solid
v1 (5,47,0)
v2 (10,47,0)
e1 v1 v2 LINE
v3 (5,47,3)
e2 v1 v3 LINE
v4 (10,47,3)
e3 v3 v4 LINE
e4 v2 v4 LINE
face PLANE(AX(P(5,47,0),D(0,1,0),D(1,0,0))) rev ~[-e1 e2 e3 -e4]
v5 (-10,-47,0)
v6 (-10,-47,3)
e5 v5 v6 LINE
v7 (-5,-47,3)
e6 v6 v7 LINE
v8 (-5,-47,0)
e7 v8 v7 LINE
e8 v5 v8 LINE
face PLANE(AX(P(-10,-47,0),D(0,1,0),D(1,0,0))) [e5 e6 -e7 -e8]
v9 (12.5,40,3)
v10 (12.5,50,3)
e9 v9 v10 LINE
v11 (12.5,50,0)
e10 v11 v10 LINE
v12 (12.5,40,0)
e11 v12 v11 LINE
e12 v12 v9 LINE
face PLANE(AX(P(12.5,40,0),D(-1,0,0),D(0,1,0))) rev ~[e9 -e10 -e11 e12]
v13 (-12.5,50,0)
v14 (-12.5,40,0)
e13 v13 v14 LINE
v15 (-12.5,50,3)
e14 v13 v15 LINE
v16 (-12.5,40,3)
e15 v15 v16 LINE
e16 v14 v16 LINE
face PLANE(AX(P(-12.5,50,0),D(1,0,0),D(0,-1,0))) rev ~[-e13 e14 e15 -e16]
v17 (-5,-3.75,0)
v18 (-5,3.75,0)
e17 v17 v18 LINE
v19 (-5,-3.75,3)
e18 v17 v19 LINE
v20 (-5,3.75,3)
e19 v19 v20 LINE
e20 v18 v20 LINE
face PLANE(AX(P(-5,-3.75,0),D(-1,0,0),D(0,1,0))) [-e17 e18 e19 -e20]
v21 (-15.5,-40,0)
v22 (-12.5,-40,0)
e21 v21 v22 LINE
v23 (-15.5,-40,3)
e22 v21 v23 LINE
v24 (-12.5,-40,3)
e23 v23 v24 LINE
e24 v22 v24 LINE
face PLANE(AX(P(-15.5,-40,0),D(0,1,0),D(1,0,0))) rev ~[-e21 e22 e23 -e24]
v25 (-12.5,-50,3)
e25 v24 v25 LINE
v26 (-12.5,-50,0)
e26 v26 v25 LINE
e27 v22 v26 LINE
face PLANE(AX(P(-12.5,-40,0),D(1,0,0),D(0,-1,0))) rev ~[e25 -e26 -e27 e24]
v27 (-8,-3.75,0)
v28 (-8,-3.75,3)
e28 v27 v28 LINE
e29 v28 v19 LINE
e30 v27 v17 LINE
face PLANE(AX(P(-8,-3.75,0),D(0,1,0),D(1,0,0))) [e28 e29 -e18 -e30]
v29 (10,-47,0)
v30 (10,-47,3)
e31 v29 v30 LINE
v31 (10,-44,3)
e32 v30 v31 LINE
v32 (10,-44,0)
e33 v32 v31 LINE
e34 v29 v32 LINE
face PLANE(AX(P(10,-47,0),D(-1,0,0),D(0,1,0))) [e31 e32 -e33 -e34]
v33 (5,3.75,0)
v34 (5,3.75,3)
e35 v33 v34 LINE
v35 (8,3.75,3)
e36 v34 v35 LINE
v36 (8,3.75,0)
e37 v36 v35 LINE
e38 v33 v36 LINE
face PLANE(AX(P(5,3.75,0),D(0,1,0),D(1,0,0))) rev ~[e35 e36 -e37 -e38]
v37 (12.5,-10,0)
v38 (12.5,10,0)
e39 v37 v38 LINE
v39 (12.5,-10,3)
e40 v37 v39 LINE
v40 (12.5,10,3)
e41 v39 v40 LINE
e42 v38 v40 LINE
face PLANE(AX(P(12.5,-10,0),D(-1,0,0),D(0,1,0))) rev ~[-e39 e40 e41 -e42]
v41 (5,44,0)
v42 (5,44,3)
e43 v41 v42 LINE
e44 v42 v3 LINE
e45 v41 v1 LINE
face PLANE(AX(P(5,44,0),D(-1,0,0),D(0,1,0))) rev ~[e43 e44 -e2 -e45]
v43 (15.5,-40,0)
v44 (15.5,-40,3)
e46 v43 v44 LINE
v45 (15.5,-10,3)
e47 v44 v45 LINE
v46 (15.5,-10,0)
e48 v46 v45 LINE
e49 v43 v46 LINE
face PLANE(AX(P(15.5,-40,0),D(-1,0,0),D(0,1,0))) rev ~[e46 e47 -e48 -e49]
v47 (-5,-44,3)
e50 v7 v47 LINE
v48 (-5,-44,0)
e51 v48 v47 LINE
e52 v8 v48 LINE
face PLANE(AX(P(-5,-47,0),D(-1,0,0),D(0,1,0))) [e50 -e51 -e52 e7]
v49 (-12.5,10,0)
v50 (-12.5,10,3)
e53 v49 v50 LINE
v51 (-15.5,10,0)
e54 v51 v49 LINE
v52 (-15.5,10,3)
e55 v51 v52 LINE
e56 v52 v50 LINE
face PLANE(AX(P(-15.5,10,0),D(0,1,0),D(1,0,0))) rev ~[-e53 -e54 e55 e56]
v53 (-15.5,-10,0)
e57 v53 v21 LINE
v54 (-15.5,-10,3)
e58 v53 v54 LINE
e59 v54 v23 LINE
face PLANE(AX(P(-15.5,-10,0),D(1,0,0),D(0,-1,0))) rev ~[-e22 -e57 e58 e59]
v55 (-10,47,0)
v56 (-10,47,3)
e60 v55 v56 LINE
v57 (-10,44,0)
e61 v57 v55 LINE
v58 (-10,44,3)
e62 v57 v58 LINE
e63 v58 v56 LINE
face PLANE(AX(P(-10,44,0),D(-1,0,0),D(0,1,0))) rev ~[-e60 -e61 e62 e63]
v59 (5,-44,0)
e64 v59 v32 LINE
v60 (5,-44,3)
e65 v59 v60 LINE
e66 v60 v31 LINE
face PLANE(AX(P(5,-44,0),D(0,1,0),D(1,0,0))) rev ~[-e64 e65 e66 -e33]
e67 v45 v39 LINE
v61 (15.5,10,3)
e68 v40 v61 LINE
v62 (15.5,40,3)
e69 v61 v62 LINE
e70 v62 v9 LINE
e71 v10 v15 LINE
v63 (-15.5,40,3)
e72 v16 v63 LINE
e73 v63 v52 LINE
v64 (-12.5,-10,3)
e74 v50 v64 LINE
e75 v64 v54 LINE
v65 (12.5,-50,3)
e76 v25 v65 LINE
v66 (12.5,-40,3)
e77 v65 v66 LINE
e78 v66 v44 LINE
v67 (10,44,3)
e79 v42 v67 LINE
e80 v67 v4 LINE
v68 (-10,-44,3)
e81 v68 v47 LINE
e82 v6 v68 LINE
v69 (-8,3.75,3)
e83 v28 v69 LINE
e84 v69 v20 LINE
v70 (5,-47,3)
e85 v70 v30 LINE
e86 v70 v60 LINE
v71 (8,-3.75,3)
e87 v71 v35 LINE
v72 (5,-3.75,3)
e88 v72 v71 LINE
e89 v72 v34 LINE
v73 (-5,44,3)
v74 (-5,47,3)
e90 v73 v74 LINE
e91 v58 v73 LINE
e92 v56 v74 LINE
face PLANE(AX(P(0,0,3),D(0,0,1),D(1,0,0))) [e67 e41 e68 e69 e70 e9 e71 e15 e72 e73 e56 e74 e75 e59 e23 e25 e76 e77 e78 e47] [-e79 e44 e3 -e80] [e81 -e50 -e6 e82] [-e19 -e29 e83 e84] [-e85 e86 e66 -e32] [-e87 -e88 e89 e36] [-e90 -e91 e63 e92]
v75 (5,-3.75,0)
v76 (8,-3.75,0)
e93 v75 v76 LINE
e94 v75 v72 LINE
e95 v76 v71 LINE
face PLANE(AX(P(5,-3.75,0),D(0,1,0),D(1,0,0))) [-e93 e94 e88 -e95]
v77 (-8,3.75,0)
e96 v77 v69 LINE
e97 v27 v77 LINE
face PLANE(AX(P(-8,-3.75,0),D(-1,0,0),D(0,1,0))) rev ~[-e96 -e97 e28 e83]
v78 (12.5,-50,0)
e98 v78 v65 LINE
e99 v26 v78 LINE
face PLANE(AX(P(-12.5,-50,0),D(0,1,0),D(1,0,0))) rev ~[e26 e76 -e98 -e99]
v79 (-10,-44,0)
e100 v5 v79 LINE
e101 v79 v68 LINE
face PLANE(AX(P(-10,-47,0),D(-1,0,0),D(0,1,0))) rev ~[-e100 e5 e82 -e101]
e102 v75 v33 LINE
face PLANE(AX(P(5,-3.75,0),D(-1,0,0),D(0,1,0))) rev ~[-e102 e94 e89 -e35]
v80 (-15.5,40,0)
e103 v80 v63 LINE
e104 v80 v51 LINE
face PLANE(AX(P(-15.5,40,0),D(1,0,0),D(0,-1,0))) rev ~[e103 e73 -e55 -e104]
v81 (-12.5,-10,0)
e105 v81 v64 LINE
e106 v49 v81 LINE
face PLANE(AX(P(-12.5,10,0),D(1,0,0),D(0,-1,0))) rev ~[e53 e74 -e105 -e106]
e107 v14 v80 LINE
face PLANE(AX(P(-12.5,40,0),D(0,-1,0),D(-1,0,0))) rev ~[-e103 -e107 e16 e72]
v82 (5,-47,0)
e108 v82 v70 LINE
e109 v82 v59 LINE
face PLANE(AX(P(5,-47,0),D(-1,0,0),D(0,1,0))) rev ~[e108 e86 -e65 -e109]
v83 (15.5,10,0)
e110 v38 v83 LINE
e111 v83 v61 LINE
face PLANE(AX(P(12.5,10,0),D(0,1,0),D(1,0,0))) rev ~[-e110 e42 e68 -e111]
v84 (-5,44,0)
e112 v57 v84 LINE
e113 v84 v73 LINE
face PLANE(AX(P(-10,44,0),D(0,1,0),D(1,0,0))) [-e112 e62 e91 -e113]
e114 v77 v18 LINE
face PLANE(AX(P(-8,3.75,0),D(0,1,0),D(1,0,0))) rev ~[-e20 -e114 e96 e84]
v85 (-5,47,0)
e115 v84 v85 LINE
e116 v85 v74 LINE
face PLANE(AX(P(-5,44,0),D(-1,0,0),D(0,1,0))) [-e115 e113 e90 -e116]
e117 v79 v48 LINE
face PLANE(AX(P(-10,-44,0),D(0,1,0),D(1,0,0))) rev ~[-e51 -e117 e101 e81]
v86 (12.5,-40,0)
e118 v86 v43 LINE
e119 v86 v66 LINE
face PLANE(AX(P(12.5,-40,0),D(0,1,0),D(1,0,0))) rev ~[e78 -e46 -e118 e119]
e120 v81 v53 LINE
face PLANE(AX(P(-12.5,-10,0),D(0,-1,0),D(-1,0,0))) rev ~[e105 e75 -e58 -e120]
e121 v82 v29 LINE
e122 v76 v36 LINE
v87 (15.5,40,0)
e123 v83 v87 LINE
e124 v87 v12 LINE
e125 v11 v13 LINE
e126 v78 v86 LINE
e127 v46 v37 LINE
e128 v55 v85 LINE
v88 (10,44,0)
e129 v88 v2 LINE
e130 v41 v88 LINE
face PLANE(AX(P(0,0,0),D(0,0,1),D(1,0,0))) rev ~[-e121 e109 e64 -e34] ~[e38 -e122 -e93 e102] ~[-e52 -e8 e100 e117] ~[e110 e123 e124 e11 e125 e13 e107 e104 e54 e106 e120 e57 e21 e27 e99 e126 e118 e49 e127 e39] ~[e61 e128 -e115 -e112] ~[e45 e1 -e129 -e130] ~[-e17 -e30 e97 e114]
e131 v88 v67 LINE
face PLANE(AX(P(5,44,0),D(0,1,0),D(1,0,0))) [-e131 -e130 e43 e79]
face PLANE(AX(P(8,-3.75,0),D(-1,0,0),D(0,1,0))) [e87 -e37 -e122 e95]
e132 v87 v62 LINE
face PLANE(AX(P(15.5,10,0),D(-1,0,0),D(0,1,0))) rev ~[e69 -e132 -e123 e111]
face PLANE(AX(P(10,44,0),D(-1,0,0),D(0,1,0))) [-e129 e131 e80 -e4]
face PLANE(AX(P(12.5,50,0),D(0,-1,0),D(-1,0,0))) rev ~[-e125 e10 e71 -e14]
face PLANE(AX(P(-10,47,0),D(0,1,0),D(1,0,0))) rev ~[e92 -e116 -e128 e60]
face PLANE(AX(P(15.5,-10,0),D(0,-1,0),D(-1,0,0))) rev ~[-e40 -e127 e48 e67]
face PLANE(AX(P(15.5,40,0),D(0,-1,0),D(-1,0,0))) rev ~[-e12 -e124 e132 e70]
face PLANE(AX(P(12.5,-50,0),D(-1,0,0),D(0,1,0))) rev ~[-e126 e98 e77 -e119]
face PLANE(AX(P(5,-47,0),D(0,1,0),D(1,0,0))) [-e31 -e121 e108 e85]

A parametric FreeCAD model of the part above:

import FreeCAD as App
import Part
import Sketcher
Q = App.Units.Quantity


def add_polygon(sketch, points):
    """Adds a closed chain of lines whose ends are joined by coincident constraints."""
    first, n = sketch.GeometryCount, len(points)
    for a, b in zip(points, points[1:] + points[:1]):
        sketch.addGeometry(Part.LineSegment(App.Vector(*a, 0), App.Vector(*b, 0)), False)
    for i in range(n):
        sketch.addConstraint(Sketcher.Constraint("Coincident", first + i, 2, first + (i + 1) % n, 1))

doc = App.newDocument("Part")
body = doc.addObject("PartDesign::Body", "Body")

sketch1 = body.newObject("Sketcher::SketchObject", "Sketch")
sketch1.AttachmentSupport = (doc.getObject("XY_Plane"), [""])
sketch1.MapMode = "FlatFace"
add_polygon(sketch1, [(12.5, 50), (-12.5, 50), (-12.5, 40), (-15.5, 40), (-15.5, 10), (-12.5, 10), (-12.5, -10), (-15.5, -10), (-15.5, -40), (-12.5, -40), (-12.5, -50), (12.5, -50), (12.5, -40), (15.5, -40), (15.5, -10), (12.5, -10), (12.5, 10), (15.5, 10), (15.5, 40), (12.5, 40)])
add_polygon(sketch1, [(-5, -47), (-10, -47), (-10, -44), (-5, -44)])
add_polygon(sketch1, [(10, -47), (5, -47), (5, -44), (10, -44)])
add_polygon(sketch1, [(-5, -3.8), (-8, -3.8), (-8, 3.8), (-5, 3.8)])
add_polygon(sketch1, [(-5, 44), (-10, 44), (-10, 47), (-5, 47)])
add_polygon(sketch1, [(8, -3.8), (5, -3.8), (5, 3.8), (8, 3.8)])
add_polygon(sketch1, [(10, 44), (5, 44), (5, 47), (10, 47)])
sketch1.addConstraint([
    Sketcher.Constraint("Horizontal", 0),
    Sketcher.Constraint("Vertical", 1),
    Sketcher.Constraint("Horizontal", 2),
    Sketcher.Constraint("Vertical", 3),
    Sketcher.Constraint("Horizontal", 4),
    Sketcher.Constraint("Vertical", 5),
    Sketcher.Constraint("Horizontal", 6),
    Sketcher.Constraint("Vertical", 7),
    Sketcher.Constraint("Horizontal", 8),
    Sketcher.Constraint("Vertical", 9),
    Sketcher.Constraint("Horizontal", 10),
    Sketcher.Constraint("Vertical", 11),
    Sketcher.Constraint("Horizontal", 12),
    Sketcher.Constraint("Vertical", 13),
    Sketcher.Constraint("Horizontal", 14),
    Sketcher.Constraint("Vertical", 15),
    Sketcher.Constraint("Horizontal", 16),
    Sketcher.Constraint("Vertical", 17),
    Sketcher.Constraint("Horizontal", 18),
    Sketcher.Constraint("Vertical", 19),
    Sketcher.Constraint("Horizontal", 20),
    Sketcher.Constraint("Vertical", 21),
    Sketcher.Constraint("Horizontal", 22),
    Sketcher.Constraint("Vertical", 23),
    Sketcher.Constraint("Horizontal", 24),
    Sketcher.Constraint("Vertical", 25),
    Sketcher.Constraint("Horizontal", 26),
    Sketcher.Constraint("Vertical", 27),
    Sketcher.Constraint("Horizontal", 28),
    Sketcher.Constraint("Vertical", 29),
    Sketcher.Constraint("Horizontal", 30),
    Sketcher.Constraint("Vertical", 31),
    Sketcher.Constraint("Horizontal", 32),
    Sketcher.Constraint("Vertical", 33),
    Sketcher.Constraint("Horizontal", 34),
    Sketcher.Constraint("Vertical", 35),
    Sketcher.Constraint("Horizontal", 36),
    Sketcher.Constraint("Vertical", 37),
    Sketcher.Constraint("Horizontal", 38),
    Sketcher.Constraint("Vertical", 39),
    Sketcher.Constraint("Horizontal", 40),
    Sketcher.Constraint("Vertical", 41),
    Sketcher.Constraint("Horizontal", 42),
    Sketcher.Constraint("Vertical", 43),
    Sketcher.Constraint("Symmetric", 0, 2, 10, 2, -1, 1),
    Sketcher.Constraint("Symmetric", 2, 2, 12, 2, -1, 1),
    Sketcher.Constraint("Symmetric", 4, 2, 14, 2, -1, 1),
    Sketcher.Constraint("Symmetric", 6, 2, 16, 2, -1, 1),
    Sketcher.Constraint("Symmetric", 8, 2, 18, 2, -1, 1),
    Sketcher.Constraint("Symmetric", 26, 2, 32, 2, -1, 1),
    Sketcher.Constraint("Symmetric", 24, 2, 34, 2, -1, 1),
    Sketcher.Constraint("Symmetric", 30, 2, 36, 2, -1, 1),
    Sketcher.Constraint("Symmetric", 28, 2, 38, 2, -1, 1),
    Sketcher.Constraint("Symmetric", 22, 2, 40, 2, -1, 1),
    Sketcher.Constraint("Symmetric", 20, 2, 42, 2, -1, 1),
    Sketcher.Constraint("Symmetric", 8, 2, 11, 2, -2),
    Sketcher.Constraint("Symmetric", 6, 2, 13, 2, -2),
    Sketcher.Constraint("Symmetric", 23, 2, 24, 2, -2),
    Sketcher.Constraint("Symmetric", 21, 2, 26, 2, -2),
    Sketcher.Constraint("Horizontal", 31, 2, 36, 2),
    Sketcher.Constraint("Vertical", 1, 2, 4, 2),
    Sketcher.Constraint("Vertical", 23, 2, 30, 2),
    Sketcher.Constraint("Equal", 18, 28),
    Sketcher.Constraint("Equal", 38, 21),
    Sketcher.Constraint("DistanceX", 0, 2, 0, 1, Q("25 mm")),
    Sketcher.Constraint("DistanceX", 2, 2, 2, 1, Q("3 mm")),
    Sketcher.Constraint("DistanceX", 20, 2, 20, 1, Q("5 mm")),
    Sketcher.Constraint("DistanceY", 1, 2, 1, 1, Q("10 mm")),
    Sketcher.Constraint("DistanceY", 3, 2, 3, 1, Q("30 mm")),
    Sketcher.Constraint("DistanceY", 5, 2, 5, 1, Q("20 mm")),
    Sketcher.Constraint("DistanceY", 29, 1, 29, 2, Q("7.5 mm")),
    Sketcher.Constraint("DistanceX", 20, 2, -1, 1, Q("10 mm")),
    Sketcher.Constraint("DistanceY", 20, 2, -1, 1, Q("47 mm")),
])
pad1 = body.newObject("PartDesign::Pad", "Pad")
pad1.Profile = sketch1
pad1.Length = 3

doc.recompute()
